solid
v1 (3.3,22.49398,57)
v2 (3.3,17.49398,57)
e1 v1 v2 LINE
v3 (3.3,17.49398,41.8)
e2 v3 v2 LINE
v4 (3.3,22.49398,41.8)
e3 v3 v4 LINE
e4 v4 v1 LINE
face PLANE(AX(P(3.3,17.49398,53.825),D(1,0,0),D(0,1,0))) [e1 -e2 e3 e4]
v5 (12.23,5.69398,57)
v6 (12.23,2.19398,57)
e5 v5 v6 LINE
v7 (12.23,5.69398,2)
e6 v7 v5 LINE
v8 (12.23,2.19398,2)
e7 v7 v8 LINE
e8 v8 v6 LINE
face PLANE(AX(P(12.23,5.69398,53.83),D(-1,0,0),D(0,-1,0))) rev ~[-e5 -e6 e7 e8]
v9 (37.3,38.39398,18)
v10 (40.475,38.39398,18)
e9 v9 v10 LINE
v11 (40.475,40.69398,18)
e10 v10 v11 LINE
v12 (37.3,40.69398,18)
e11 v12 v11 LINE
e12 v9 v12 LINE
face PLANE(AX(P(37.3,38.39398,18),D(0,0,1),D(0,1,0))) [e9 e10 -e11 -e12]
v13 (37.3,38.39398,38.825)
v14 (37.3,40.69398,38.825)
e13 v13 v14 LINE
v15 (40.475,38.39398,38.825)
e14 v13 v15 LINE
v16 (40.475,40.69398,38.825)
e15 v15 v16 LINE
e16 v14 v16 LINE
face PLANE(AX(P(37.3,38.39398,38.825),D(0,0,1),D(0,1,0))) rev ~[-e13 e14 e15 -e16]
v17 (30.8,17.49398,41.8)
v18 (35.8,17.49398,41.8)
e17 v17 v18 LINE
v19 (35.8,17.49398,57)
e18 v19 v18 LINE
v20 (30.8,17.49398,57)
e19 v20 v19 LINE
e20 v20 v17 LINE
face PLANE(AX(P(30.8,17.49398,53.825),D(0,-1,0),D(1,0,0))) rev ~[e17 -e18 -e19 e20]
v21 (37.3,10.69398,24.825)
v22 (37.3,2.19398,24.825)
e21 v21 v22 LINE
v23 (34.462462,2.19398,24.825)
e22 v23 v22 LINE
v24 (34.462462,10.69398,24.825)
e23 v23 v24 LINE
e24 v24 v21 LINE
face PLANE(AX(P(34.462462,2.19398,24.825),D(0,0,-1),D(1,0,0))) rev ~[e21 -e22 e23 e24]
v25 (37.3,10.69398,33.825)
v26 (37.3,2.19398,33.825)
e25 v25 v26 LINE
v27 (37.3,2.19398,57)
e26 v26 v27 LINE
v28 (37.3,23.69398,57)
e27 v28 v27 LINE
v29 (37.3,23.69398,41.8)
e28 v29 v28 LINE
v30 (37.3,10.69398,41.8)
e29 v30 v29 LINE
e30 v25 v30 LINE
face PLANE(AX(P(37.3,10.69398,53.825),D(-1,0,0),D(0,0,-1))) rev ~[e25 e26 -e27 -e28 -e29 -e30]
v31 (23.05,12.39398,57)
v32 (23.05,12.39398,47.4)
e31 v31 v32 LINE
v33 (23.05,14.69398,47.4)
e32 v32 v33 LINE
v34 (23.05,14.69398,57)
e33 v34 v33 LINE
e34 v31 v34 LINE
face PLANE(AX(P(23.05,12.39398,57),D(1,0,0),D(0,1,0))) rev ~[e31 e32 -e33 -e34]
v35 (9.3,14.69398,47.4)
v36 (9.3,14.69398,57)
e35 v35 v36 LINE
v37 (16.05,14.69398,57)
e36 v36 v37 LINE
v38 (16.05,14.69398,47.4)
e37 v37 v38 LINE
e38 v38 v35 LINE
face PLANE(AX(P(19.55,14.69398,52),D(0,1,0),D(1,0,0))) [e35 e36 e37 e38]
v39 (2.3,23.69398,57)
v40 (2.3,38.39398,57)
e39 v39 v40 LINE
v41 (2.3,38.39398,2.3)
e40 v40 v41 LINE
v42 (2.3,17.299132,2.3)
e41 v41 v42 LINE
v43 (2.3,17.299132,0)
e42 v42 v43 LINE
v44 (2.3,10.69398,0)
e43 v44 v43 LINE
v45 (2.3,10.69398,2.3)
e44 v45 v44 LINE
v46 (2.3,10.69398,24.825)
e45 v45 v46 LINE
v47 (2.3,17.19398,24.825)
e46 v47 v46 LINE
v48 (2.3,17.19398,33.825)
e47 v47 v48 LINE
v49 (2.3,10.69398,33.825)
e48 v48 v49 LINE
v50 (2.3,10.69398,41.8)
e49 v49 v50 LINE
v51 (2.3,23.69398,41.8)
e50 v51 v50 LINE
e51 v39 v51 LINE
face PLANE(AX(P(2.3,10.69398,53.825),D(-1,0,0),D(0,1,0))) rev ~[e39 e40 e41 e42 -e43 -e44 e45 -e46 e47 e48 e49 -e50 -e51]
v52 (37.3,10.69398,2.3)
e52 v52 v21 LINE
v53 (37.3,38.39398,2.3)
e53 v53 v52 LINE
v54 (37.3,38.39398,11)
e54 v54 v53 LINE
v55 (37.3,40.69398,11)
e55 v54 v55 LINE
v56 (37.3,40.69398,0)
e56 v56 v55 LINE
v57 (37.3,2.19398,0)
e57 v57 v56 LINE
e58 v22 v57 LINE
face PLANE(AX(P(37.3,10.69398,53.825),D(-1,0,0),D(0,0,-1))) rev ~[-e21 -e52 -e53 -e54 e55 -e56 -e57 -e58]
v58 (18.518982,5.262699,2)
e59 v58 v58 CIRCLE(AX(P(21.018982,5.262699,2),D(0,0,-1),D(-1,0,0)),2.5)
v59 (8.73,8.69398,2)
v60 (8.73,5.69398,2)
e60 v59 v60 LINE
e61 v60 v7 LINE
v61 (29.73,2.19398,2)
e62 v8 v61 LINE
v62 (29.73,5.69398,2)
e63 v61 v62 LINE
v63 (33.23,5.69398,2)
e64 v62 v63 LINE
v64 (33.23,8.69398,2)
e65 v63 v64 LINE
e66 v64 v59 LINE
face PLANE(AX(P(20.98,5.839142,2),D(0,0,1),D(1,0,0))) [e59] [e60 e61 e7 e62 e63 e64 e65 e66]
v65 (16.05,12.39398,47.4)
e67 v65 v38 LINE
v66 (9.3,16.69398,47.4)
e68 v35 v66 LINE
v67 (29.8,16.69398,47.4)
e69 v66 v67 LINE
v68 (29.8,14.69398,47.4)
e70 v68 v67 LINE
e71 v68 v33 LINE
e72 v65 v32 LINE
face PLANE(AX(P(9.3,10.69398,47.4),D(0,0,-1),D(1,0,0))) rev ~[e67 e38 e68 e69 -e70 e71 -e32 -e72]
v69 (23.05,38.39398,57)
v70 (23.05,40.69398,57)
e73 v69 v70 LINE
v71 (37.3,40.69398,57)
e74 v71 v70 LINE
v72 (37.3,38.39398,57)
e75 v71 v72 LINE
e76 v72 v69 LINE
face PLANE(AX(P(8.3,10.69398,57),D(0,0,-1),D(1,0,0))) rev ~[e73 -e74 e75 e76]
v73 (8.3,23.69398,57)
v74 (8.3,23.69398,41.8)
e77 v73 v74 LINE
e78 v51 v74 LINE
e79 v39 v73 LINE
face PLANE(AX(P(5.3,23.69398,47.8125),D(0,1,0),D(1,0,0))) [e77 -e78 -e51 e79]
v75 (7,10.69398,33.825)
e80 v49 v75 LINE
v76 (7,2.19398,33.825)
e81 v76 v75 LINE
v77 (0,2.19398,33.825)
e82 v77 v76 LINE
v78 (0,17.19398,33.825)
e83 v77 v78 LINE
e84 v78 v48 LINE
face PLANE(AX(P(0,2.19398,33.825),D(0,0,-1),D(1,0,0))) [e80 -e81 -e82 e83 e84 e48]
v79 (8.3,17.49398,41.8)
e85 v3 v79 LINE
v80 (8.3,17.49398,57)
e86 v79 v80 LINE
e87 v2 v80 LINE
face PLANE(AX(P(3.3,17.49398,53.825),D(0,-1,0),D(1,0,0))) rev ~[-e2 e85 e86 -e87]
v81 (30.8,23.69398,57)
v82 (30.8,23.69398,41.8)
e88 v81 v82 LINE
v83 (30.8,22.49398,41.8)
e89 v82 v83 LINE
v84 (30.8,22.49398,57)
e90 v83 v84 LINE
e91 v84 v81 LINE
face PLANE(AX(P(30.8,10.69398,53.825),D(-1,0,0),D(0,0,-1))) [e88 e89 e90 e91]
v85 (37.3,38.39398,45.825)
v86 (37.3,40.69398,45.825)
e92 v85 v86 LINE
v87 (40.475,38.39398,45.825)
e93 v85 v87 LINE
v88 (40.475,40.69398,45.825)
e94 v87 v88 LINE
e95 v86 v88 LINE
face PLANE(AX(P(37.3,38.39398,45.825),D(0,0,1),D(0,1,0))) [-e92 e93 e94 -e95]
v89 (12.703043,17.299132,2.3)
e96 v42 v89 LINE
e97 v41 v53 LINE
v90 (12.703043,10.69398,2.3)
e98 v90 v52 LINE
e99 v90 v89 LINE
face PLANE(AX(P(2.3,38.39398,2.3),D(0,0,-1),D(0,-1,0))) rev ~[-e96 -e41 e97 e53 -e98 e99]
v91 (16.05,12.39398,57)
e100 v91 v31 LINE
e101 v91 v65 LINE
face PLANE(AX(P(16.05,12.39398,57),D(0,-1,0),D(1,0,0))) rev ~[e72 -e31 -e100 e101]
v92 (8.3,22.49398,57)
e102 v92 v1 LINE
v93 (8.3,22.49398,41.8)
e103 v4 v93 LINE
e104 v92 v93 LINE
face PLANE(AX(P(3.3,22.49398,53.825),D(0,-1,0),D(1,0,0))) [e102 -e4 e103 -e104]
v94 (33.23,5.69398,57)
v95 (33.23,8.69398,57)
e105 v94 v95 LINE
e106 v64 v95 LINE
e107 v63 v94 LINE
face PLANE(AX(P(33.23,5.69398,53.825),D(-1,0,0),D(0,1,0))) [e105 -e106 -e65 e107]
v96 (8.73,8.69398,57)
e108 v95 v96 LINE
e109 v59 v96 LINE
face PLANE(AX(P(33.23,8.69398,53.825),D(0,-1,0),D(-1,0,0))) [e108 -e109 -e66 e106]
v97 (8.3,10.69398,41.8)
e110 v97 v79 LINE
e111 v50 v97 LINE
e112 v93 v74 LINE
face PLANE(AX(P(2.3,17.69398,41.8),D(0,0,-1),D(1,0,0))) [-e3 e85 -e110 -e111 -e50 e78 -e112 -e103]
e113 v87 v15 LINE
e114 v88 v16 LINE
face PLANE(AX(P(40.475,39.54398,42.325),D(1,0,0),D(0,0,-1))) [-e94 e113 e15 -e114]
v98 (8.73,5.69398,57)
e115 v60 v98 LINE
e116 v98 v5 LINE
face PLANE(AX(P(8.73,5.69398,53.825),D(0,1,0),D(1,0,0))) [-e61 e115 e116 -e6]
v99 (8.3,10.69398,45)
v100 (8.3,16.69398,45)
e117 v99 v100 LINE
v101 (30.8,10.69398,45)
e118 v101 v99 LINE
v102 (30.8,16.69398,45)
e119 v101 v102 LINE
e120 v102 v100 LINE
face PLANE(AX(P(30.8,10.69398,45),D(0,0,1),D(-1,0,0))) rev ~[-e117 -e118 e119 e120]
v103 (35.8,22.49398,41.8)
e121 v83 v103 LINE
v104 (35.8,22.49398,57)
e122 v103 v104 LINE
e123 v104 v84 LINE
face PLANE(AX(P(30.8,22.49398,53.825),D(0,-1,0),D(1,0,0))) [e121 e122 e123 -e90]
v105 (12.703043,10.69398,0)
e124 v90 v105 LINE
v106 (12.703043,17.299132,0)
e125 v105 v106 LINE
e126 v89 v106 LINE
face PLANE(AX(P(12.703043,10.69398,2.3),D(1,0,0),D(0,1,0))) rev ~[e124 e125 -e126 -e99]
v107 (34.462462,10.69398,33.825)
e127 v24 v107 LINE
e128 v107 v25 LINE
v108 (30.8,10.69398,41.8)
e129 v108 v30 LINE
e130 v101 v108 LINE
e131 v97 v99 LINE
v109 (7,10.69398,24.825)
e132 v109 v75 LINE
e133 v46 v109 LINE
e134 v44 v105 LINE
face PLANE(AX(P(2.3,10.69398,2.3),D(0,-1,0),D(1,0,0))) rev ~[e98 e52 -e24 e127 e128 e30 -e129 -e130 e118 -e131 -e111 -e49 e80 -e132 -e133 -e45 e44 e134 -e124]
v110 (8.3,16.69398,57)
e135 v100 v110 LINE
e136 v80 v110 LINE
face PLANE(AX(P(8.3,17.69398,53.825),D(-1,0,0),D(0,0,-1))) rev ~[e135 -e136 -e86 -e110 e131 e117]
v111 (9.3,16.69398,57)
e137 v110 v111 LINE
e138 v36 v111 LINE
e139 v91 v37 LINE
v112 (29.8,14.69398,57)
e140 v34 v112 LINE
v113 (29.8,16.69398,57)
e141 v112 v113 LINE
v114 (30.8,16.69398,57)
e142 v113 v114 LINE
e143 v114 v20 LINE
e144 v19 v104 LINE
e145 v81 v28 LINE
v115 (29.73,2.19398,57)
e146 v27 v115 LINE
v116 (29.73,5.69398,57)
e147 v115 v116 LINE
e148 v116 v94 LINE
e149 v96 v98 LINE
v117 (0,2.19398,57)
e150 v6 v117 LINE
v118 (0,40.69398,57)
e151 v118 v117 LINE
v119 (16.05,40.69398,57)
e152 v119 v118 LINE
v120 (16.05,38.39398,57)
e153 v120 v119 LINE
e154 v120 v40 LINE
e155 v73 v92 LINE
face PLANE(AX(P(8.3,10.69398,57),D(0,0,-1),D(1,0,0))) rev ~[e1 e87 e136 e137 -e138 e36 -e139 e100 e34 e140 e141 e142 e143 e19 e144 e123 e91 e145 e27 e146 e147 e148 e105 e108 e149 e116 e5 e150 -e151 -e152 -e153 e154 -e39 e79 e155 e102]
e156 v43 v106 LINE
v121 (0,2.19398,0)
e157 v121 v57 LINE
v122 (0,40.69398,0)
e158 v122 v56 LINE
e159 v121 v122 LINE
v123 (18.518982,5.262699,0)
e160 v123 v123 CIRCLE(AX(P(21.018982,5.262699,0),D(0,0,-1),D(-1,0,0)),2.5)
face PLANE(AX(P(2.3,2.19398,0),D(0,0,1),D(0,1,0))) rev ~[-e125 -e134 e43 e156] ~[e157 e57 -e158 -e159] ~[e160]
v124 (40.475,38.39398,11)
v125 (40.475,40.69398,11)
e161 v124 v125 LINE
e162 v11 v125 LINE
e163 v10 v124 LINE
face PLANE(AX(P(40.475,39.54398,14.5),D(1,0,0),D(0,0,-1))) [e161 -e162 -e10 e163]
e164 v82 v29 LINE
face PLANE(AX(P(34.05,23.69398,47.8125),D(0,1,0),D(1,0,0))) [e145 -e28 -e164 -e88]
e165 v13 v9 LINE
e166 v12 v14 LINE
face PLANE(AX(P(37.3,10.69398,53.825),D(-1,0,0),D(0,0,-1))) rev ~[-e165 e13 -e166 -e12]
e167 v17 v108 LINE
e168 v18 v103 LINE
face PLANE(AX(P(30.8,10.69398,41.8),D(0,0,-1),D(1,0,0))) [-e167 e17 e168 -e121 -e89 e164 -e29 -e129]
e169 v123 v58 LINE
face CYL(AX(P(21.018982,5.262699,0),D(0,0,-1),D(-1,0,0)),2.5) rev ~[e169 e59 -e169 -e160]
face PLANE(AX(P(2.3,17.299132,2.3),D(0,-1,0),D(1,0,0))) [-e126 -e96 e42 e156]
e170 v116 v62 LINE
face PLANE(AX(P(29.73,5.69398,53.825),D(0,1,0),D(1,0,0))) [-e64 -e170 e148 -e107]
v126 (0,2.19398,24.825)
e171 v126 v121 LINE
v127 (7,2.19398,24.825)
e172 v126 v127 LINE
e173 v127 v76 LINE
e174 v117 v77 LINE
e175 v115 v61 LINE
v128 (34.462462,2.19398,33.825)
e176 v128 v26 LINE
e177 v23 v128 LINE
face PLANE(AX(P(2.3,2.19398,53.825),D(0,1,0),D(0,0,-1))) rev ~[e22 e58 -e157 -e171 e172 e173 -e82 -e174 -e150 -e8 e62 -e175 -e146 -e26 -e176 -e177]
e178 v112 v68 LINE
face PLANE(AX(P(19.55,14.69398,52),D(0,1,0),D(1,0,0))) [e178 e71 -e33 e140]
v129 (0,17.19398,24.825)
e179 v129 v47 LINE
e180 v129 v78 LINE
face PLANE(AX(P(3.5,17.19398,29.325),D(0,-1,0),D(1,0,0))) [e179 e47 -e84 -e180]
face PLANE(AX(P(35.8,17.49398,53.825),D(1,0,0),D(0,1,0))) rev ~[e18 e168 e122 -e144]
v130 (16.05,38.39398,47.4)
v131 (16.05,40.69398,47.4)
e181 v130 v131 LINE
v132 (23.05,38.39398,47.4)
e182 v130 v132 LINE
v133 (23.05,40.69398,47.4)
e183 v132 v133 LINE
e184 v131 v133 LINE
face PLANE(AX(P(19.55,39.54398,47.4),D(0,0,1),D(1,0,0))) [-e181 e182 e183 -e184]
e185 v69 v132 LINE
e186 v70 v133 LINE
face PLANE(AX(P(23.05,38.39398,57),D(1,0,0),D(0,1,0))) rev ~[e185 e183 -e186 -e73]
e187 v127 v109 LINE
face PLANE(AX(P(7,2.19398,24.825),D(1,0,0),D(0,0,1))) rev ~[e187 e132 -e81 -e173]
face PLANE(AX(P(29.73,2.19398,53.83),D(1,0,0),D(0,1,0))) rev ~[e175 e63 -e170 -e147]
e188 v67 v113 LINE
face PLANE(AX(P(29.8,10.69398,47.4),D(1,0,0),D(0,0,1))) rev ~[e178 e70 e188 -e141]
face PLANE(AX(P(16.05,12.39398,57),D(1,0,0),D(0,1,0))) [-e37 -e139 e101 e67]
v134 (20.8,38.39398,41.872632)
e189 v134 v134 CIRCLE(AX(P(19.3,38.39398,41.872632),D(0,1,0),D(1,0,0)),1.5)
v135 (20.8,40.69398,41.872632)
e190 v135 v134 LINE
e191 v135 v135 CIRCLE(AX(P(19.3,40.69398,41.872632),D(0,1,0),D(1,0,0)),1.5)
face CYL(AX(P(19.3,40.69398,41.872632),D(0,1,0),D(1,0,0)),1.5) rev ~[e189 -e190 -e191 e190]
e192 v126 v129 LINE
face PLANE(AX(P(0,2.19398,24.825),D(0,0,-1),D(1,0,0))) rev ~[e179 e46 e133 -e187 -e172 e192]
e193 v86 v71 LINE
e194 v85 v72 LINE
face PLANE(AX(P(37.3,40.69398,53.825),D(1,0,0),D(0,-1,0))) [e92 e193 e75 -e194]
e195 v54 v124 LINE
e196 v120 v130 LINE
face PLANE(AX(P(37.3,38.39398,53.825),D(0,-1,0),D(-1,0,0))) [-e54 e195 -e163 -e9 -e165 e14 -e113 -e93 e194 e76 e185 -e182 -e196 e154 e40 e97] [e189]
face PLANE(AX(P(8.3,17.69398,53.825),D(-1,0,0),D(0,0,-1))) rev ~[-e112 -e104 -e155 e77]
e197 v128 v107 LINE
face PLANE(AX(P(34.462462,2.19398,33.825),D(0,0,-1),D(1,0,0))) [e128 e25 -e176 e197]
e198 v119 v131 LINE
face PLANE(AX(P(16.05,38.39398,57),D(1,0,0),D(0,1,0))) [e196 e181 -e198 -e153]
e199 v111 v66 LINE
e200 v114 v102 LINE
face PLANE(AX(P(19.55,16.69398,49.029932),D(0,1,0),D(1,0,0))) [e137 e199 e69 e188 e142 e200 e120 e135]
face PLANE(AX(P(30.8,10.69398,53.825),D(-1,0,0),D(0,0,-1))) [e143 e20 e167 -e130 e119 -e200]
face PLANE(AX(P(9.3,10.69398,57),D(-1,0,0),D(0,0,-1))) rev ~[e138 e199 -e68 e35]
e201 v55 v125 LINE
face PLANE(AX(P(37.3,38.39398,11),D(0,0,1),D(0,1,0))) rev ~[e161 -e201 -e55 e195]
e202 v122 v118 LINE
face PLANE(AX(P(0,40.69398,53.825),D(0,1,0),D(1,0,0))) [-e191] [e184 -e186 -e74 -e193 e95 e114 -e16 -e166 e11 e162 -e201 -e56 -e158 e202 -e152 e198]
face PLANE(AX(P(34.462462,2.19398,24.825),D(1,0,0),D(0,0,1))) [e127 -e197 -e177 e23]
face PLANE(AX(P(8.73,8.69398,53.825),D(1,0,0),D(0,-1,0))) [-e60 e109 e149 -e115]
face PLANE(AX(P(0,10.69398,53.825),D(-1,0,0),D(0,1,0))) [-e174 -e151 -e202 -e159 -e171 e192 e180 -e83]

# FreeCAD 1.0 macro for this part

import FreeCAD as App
import Part
import Sketcher

V = App.Vector
Q = App.Units.Quantity


def add_polygon(sketch, points):
    """Adds a closed chain of lines whose ends are joined by coincident constraints."""
    first, n = sketch.GeometryCount, len(points)
    for a, b in zip(points, points[1:] + points[:1]):
        sketch.addGeometry(Part.LineSegment(App.Vector(*a, 0), App.Vector(*b, 0)), False)
    for i in range(n):
        sketch.addConstraint(Sketcher.Constraint("Coincident", first + i, 2, first + (i + 1) % n, 1))

doc = App.newDocument("Part")
body = doc.addObject("PartDesign::Body", "Body")

# Sketch on YZ plane
sketch1 = body.newObject("Sketcher::SketchObject", "Sketch")
sketch1.AttachmentSupport = (doc.getObject("YZ_Plane"), [""])
sketch1.MapMode = "FlatFace"
add_polygon(sketch1, [(41, 54), (2, 54), (2, 0), (41, 0)])  # lines 0-3
sketch1.addConstraint([
    Sketcher.Constraint("Horizontal", 0),
    Sketcher.Constraint("Vertical", 1),
    Sketcher.Constraint("Horizontal", 2),
    Sketcher.Constraint("Vertical", 3),
    Sketcher.Constraint("PointOnObject", 1, 2, -1),
    Sketcher.Constraint("DistanceX", 0, 2, 0, 1, Q("38.5 mm")),
    Sketcher.Constraint("DistanceY", 1, 2, 1, 1, Q("53.825 mm")),
    Sketcher.Constraint("DistanceX", -1, 1, 0, 2, Q("2.19398 mm")),
])
pad1 = body.newObject("PartDesign::Pad", "Pad")
pad1.Profile = sketch1
pad1.Length = 2.3

# Sketch on YZ plane
sketch2 = body.newObject("Sketcher::SketchObject", "Sketch001")
sketch2.AttachmentSupport = (doc.getObject("YZ_Plane"), [""])
sketch2.MapMode = "FlatFace"
sketch2.AttachmentOffset = App.Placement(V(0, 0, 2.3), App.Rotation())
add_polygon(sketch2, [(38.4, 2.3), (10.7, 2.3), (10.7, 53.8), (2.2, 53.8), (2.2, 0), (40.7, 0), (40.7, 53.8), (38.4, 53.8)])  # lines 0-7
sketch2.addConstraint([
    Sketcher.Constraint("Horizontal", 0),
    Sketcher.Constraint("Vertical", 1),
    Sketcher.Constraint("Horizontal", 2),
    Sketcher.Constraint("Vertical", 3),
    Sketcher.Constraint("Horizontal", 4),
    Sketcher.Constraint("Vertical", 5),
    Sketcher.Constraint("Horizontal", 6),
    Sketcher.Constraint("Vertical", 7),
    Sketcher.Constraint("PointOnObject", 3, 2, -1),
    Sketcher.Constraint("Horizontal", 2, 2, 5, 2),
    Sketcher.Constraint("DistanceX", 0, 2, 0, 1, Q("27.7 mm")),
    Sketcher.Constraint("DistanceX", 2, 2, 2, 1, Q("8.5 mm")),
    Sketcher.Constraint("DistanceX", 4, 1, 4, 2, Q("38.5 mm")),
    Sketcher.Constraint("DistanceY", -1, 1, 0, 2, Q("2.3 mm")),
    Sketcher.Constraint("DistanceY", 1, 1, 1, 2, Q("51.525 mm")),
    Sketcher.Constraint("DistanceX", -1, 1, 0, 2, Q("10.69398 mm")),
])
pad2 = body.newObject("PartDesign::Pad", "Pad001")
pad2.Profile = sketch2
pad2.Length = 35

# Sketch on XY plane
sketch3 = body.newObject("Sketcher::SketchObject", "Sketch002")
sketch3.AttachmentSupport = (doc.getObject("XY_Plane"), [""])
sketch3.MapMode = "FlatFace"
sketch3.AttachmentOffset = App.Placement(V(0, 0, 53.825), App.Rotation())
add_polygon(sketch3, [(8, 40.7), (8, 38.4), (15, 38.4), (15, 40.7)])  # lines 0-3
add_polygon(sketch3, [(23, 40.7), (23, 38.4), (30, 38.4), (30, 40.7)])  # lines 4-7
add_polygon(sketch3, [(0, 32.7), (0, 25.7), (2.3, 25.7), (2.3, 32.7)])  # lines 8-11
add_polygon(sketch3, [(0, 17.7), (0, 10.7), (2.3, 10.7), (2.3, 17.7)])  # lines 12-15
sketch3.addConstraint([
    Sketcher.Constraint("Vertical", 0),
    Sketcher.Constraint("Horizontal", 1),
    Sketcher.Constraint("Vertical", 2),
    Sketcher.Constraint("Horizontal", 3),
    Sketcher.Constraint("Vertical", 4),
    Sketcher.Constraint("Horizontal", 5),
    Sketcher.Constraint("Vertical", 6),
    Sketcher.Constraint("Horizontal", 7),
    Sketcher.Constraint("Vertical", 8),
    Sketcher.Constraint("Horizontal", 9),
    Sketcher.Constraint("Vertical", 10),
    Sketcher.Constraint("Horizontal", 11),
    Sketcher.Constraint("Vertical", 12),
    Sketcher.Constraint("Horizontal", 13),
    Sketcher.Constraint("Vertical", 14),
    Sketcher.Constraint("Horizontal", 15),
    Sketcher.Constraint("PointOnObject", 8, 2, -2),
    Sketcher.Constraint("PointOnObject", 12, 2, -2),
    Sketcher.Constraint("Horizontal", 1, 2, 4, 2),
    Sketcher.Constraint("Horizontal", 3, 2, 6, 2),
    Sketcher.Constraint("Vertical", 10, 2, 13, 2),
    Sketcher.Constraint("Equal", 3, 5),
    Sketcher.Constraint("Equal", 15, 0),
    Sketcher.Constraint("Equal", 7, 8),
    Sketcher.Constraint("Equal", 10, 12),
    Sketcher.Constraint("DistanceX", 1, 1, 1, 2, Q("7 mm")),
    Sketcher.Constraint("DistanceX", 9, 1, 9, 2, Q("2.3 mm")),
    Sketcher.Constraint("DistanceX", -1, 1, 0, 2, Q("8 mm")),
    Sketcher.Constraint("DistanceX", -1, 1, 4, 2, Q("23 mm")),
    Sketcher.Constraint("DistanceY", 8, 2, 3, 2, Q("15 mm")),
    Sketcher.Constraint("DistanceY", 12, 2, 8, 2, Q("15 mm")),
    Sketcher.Constraint("DistanceY", -1, 1, 0, 2, Q("38.39398 mm")),
])
pad3 = body.newObject("PartDesign::Pad", "Pad002")
pad3.Profile = sketch3
pad3.Length = 3.175

# Sketch on XY plane
sketch4 = body.newObject("Sketcher::SketchObject", "Sketch003")
sketch4.AttachmentSupport = (doc.getObject("XY_Plane"), [""])
sketch4.MapMode = "FlatFace"
sketch4.AttachmentOffset = App.Placement(V(0, 0, 2.3), App.Rotation())
add_polygon(sketch4, [(2, 17), (2, 11), (13, 11), (13, 17)])  # lines 0-3
sketch4.addConstraint([
    Sketcher.Constraint("Vertical", 0),
    Sketcher.Constraint("Horizontal", 1),
    Sketcher.Constraint("Vertical", 2),
    Sketcher.Constraint("Horizontal", 3),
    Sketcher.Constraint("DistanceX", -1, 1, 0, 2, Q("2.3 mm")),
    Sketcher.Constraint("DistanceY", 0, 2, 0, 1, Q("6.605151 mm")),
    Sketcher.Constraint("DistanceX", 1, 1, 1, 2, Q("10.403043 mm")),
    Sketcher.Constraint("DistanceY", -1, 1, 0, 2, Q("10.69398 mm")),
])
pocket1 = body.newObject("PartDesign::Pocket", "Pocket")
pocket1.Profile = sketch4
pocket1.Type = "ThroughAll"

# Sketch on XZ plane
sketch5 = body.newObject("Sketcher::SketchObject", "Sketch004")
sketch5.AttachmentSupport = (doc.getObject("XZ_Plane"), [""])
sketch5.MapMode = "FlatFace"
sketch5.AttachmentOffset = App.Placement(V(0, 0, -10.69398), App.Rotation())
add_polygon(sketch5, [(31, 42), (31, 54), (37, 54), (37, 42)])  # lines 0-3
add_polygon(sketch5, [(2, 42), (2, 54), (8, 54), (8, 42)])  # lines 4-7
sketch5.addConstraint([
    Sketcher.Constraint("Vertical", 0),
    Sketcher.Constraint("Horizontal", 1),
    Sketcher.Constraint("Vertical", 2),
    Sketcher.Constraint("Horizontal", 3),
    Sketcher.Constraint("Vertical", 4),
    Sketcher.Constraint("Horizontal", 5),
    Sketcher.Constraint("Vertical", 6),
    Sketcher.Constraint("Horizontal", 7),
    Sketcher.Constraint("Horizontal", 1, 2, 4, 2),
    Sketcher.Constraint("Horizontal", 3, 2, 6, 2),
    Sketcher.Constraint("DistanceX", 5, 1, 5, 2, Q("6 mm")),
    Sketcher.Constraint("DistanceX", 1, 1, 1, 2, Q("6.5 mm")),
    Sketcher.Constraint("DistanceX", 4, 2, 1, 2, Q("35 mm")),
    Sketcher.Constraint("DistanceX", -1, 1, 0, 2, Q("30.8 mm")),
    Sketcher.Constraint("DistanceY", -1, 1, 2, 2, Q("41.8 mm")),
    Sketcher.Constraint("DistanceY", 0, 1, 0, 2, Q("12.025 mm")),
])
pad4 = body.newObject("PartDesign::Pad", "Pad003")
pad4.Profile = sketch5
pad4.Length = 7
pad4.Reversed = True

# Sketch on XY plane
sketch6 = body.newObject("Sketcher::SketchObject", "Sketch005")
sketch6.AttachmentSupport = (doc.getObject("XY_Plane"), [""])
sketch6.MapMode = "FlatFace"
sketch6.AttachmentOffset = App.Placement(V(0, 0, 53.83), App.Rotation())
add_polygon(sketch6, [(12.2, 2.2), (29.7, 2.2), (29.7, 5.7), (33.2, 5.7), (33.2, 8.7), (8.7, 8.7), (8.7, 5.7), (12.2, 5.7)])  # lines 0-7
sketch6.addConstraint([
    Sketcher.Constraint("Horizontal", 0),
    Sketcher.Constraint("Vertical", 1),
    Sketcher.Constraint("Horizontal", 2),
    Sketcher.Constraint("Vertical", 3),
    Sketcher.Constraint("Horizontal", 4),
    Sketcher.Constraint("Vertical", 5),
    Sketcher.Constraint("Horizontal", 6),
    Sketcher.Constraint("Vertical", 7),
    Sketcher.Constraint("Horizontal", 2, 2, 5, 2),
    Sketcher.Constraint("Equal", 2, 6),
    Sketcher.Constraint("Equal", 6, 1),
    Sketcher.Constraint("DistanceY", 3, 1, 3, 2, Q("3 mm")),
    Sketcher.Constraint("DistanceX", 0, 1, 0, 2, Q("17.5 mm")),
    Sketcher.Constraint("DistanceX", 2, 1, 2, 2, Q("3.5 mm")),
    Sketcher.Constraint("DistanceX", -1, 1, 0, 2, Q("29.73 mm")),
    Sketcher.Constraint("DistanceY", -1, 1, 0, 2, Q("2.19398 mm")),
])
pocket2 = body.newObject("PartDesign::Pocket", "Pocket001")
pocket2.Profile = sketch6
pocket2.Length = 51.83

# Sketch on XZ plane
sketch7 = body.newObject("Sketcher::SketchObject", "Sketch006")
sketch7.AttachmentSupport = (doc.getObject("XZ_Plane"), [""])
sketch7.MapMode = "FlatFace"
sketch7.AttachmentOffset = App.Placement(V(0, 0, -40.69398), App.Rotation())
sketch7.addGeometry(Part.Circle(V(19.3, 41.9, 0), V(0, 0, 1), 1.5), False)
sketch7.addConstraint([
    Sketcher.Constraint("Diameter", 0, Q("3 mm")),
    Sketcher.Constraint("DistanceX", -1, 1, 0, 3, Q("19.3 mm")),
    Sketcher.Constraint("DistanceY", -1, 1, 0, 3, Q("41.872632 mm")),
])
pocket3 = body.newObject("PartDesign::Pocket", "Pocket002")
pocket3.Profile = sketch7
pocket3.Length = 3
pocket3.Reversed = True

# Sketch on YZ plane
sketch8 = body.newObject("Sketcher::SketchObject", "Sketch007")
sketch8.AttachmentSupport = (doc.getObject("YZ_Plane"), [""])
sketch8.MapMode = "FlatFace"
sketch8.AttachmentOffset = App.Placement(V(0, 0, 37.3), App.Rotation())
add_polygon(sketch8, [(40.7, 45.8), (38.4, 45.8), (38.4, 38.8), (40.7, 38.8)])  # lines 0-3
add_polygon(sketch8, [(40.7, 18), (38.4, 18), (38.4, 11), (40.7, 11)])  # lines 4-7
sketch8.addConstraint([
    Sketcher.Constraint("Horizontal", 0),
    Sketcher.Constraint("Vertical", 1),
    Sketcher.Constraint("Horizontal", 2),
    Sketcher.Constraint("Vertical", 3),
    Sketcher.Constraint("Horizontal", 4),
    Sketcher.Constraint("Vertical", 5),
    Sketcher.Constraint("Horizontal", 6),
    Sketcher.Constraint("Vertical", 7),
    Sketcher.Constraint("Vertical", 1, 2, 4, 2),
    Sketcher.Constraint("Vertical", 3, 2, 6, 2),
    Sketcher.Constraint("Equal", 3, 5),
    Sketcher.Constraint("DistanceY", 1, 2, 1, 1, Q("7 mm")),
    Sketcher.Constraint("DistanceX", 0, 2, 0, 1, Q("2.3 mm")),
    Sketcher.Constraint("DistanceY", -1, 1, 4, 2, Q("18 mm")),
    Sketcher.Constraint("DistanceY", -1, 1, 0, 2, Q("45.825 mm")),
    Sketcher.Constraint("DistanceX", -1, 1, 0, 2, Q("38.39398 mm")),
])
pad5 = body.newObject("PartDesign::Pad", "Pad004")
pad5.Profile = sketch8
pad5.Length = 3.175

# Sketch on XZ plane
sketch9 = body.newObject("Sketcher::SketchObject", "Sketch008")
sketch9.AttachmentSupport = (doc.getObject("XZ_Plane"), [""])
sketch9.MapMode = "FlatFace"
sketch9.AttachmentOffset = App.Placement(V(0, 0, -17.69398), App.Rotation())
add_polygon(sketch9, [(2, 42), (2, 54), (8, 54), (8, 42)])  # lines 0-3
add_polygon(sketch9, [(31, 42), (31, 54), (37, 54), (37, 42)])  # lines 4-7
sketch9.addConstraint([
    Sketcher.Constraint("Vertical", 0),
    Sketcher.Constraint("Horizontal", 1),
    Sketcher.Constraint("Vertical", 2),
    Sketcher.Constraint("Horizontal", 3),
    Sketcher.Constraint("Vertical", 4),
    Sketcher.Constraint("Horizontal", 5),
    Sketcher.Constraint("Vertical", 6),
    Sketcher.Constraint("Horizontal", 7),
    Sketcher.Constraint("Horizontal", 1, 2, 4, 2),
    Sketcher.Constraint("Horizontal", 3, 2, 6, 2),
    Sketcher.Constraint("DistanceX", 1, 1, 1, 2, Q("6 mm")),
    Sketcher.Constraint("DistanceX", 5, 1, 5, 2, Q("6.5 mm")),
    Sketcher.Constraint("DistanceX", 1, 2, 5, 2, Q("29 mm")),
    Sketcher.Constraint("DistanceX", -1, 1, 0, 2, Q("2.3 mm")),
    Sketcher.Constraint("DistanceY", -1, 1, 2, 2, Q("41.8 mm")),
    Sketcher.Constraint("DistanceY", 0, 1, 0, 2, Q("12.025 mm")),
])
pad6 = body.newObject("PartDesign::Pad", "Pad005")
pad6.Profile = sketch9
pad6.Length = 6
pad6.Reversed = True

# Sketch on XY plane
sketch10 = body.newObject("Sketcher::SketchObject", "Sketch009")
sketch10.AttachmentSupport = (doc.getObject("XY_Plane"), [""])
sketch10.MapMode = "FlatFace"
sketch10.AttachmentOffset = App.Placement(V(0, 0, 53.825), App.Rotation())
add_polygon(sketch10, [(30.8, 22.5), (30.8, 17.5), (35.8, 17.5), (35.8, 22.5)])  # lines 0-3
add_polygon(sketch10, [(3.3, 22.5), (3.3, 17.5), (8.3, 17.5), (8.3, 22.5)])  # lines 4-7
sketch10.addConstraint([
    Sketcher.Constraint("Vertical", 0),
    Sketcher.Constraint("Horizontal", 1),
    Sketcher.Constraint("Vertical", 2),
    Sketcher.Constraint("Horizontal", 3),
    Sketcher.Constraint("Vertical", 4),
    Sketcher.Constraint("Horizontal", 5),
    Sketcher.Constraint("Vertical", 6),
    Sketcher.Constraint("Horizontal", 7),
    Sketcher.Constraint("Horizontal", 1, 2, 4, 2),
    Sketcher.Constraint("Horizontal", 3, 2, 6, 2),
    Sketcher.Constraint("Equal", 3, 5),
    Sketcher.Constraint("Equal", 7, 0),
    Sketcher.Constraint("DistanceX", 1, 1, 1, 2, Q("5 mm")),
    Sketcher.Constraint("DistanceX", -1, 1, 0, 2, Q("30.8 mm")),
    Sketcher.Constraint("DistanceX", -1, 1, 4, 2, Q("3.3 mm")),
    Sketcher.Constraint("DistanceY", -1, 1, 0, 2, Q("17.49398 mm")),
])
pocket4 = body.newObject("PartDesign::Pocket", "Pocket003")
pocket4.Profile = sketch10
pocket4.Length = 12.025

# Sketch on XY plane
sketch11 = body.newObject("Sketcher::SketchObject", "Sketch010")
sketch11.AttachmentSupport = (doc.getObject("XY_Plane"), [""])
sketch11.MapMode = "FlatFace"
sketch11.addGeometry(Part.Circle(V(21, 5.3, 0), V(0, 0, 1), 2.5), False)
sketch11.addConstraint([
    Sketcher.Constraint("Diameter", 0, Q("5 mm")),
    Sketcher.Constraint("DistanceY", -1, 1, 0, 3, Q("5.262699 mm")),
    Sketcher.Constraint("DistanceX", -1, 1, 0, 3, Q("21.018982 mm")),
])
pocket5 = body.newObject("PartDesign::Pocket", "Pocket004")
pocket5.Profile = sketch11
pocket5.Length = 2
pocket5.Reversed = True

# Sketch on XZ plane
sketch12 = body.newObject("Sketcher::SketchObject", "Sketch011")
sketch12.AttachmentSupport = (doc.getObject("XZ_Plane"), [""])
sketch12.MapMode = "FlatFace"
sketch12.AttachmentOffset = App.Placement(V(0, 0, -2.19398), App.Rotation())
add_polygon(sketch12, [(0, 34), (0, 25), (7, 25), (7, 34)])  # lines 0-3
add_polygon(sketch12, [(34, 34), (34, 25), (41, 25), (41, 34)])  # lines 4-7
sketch12.addConstraint([
    Sketcher.Constraint("Vertical", 0),
    Sketcher.Constraint("Horizontal", 1),
    Sketcher.Constraint("Vertical", 2),
    Sketcher.Constraint("Horizontal", 3),
    Sketcher.Constraint("Vertical", 4),
    Sketcher.Constraint("Horizontal", 5),
    Sketcher.Constraint("Vertical", 6),
    Sketcher.Constraint("Horizontal", 7),
    Sketcher.Constraint("PointOnObject", 0, 2, -2),
    Sketcher.Constraint("Horizontal", 1, 2, 4, 2),
    Sketcher.Constraint("Horizontal", 3, 2, 6, 2),
    Sketcher.Constraint("Equal", 3, 5),
    Sketcher.Constraint("DistanceX", 1, 1, 1, 2, Q("7 mm")),
    Sketcher.Constraint("DistanceY", 0, 2, 0, 1, Q("9 mm")),
    Sketcher.Constraint("DistanceY", -1, 1, 0, 2, Q("24.825 mm")),
    Sketcher.Constraint("DistanceX", -1, 1, 4, 2, Q("34.462462 mm")),
])
pocket6 = body.newObject("PartDesign::Pocket", "Pocket005")
pocket6.Profile = sketch12
pocket6.Length = 15

# Sketch on XY plane
sketch13 = body.newObject("Sketcher::SketchObject", "Sketch012")
sketch13.AttachmentSupport = (doc.getObject("XY_Plane"), [""])
sketch13.MapMode = "FlatFace"
sketch13.AttachmentOffset = App.Placement(V(0, 0, 53.825), App.Rotation())
add_polygon(sketch13, [(2.3, 38.4), (37.3, 38.4), (37.3, 40.7), (0, 40.7), (0, 2.2), (12.2, 2.2), (12.2, 5.7), (8.7, 5.7), (8.7, 8.7), (33.2, 8.7), (33.2, 5.7), (29.7, 5.7), (29.7, 2.2), (37.3, 2.2), (37.3, 23.7), (30.8, 23.7), (30.8, 22.5), (35.8, 22.5), (35.8, 17.5), (30.8, 17.5), (30.8, 10.7), (8.3, 10.7), (8.3, 17.5), (3.3, 17.5), (3.3, 22.5), (8.3, 22.5), (8.3, 23.7), (2.3, 23.7)])  # lines 0-27
sketch13.addConstraint([
    Sketcher.Constraint("Horizontal", 0),
    Sketcher.Constraint("Vertical", 1),
    Sketcher.Constraint("Horizontal", 2),
    Sketcher.Constraint("Vertical", 3),
    Sketcher.Constraint("Horizontal", 4),
    Sketcher.Constraint("Vertical", 5),
    Sketcher.Constraint("Horizontal", 6),
    Sketcher.Constraint("Vertical", 7),
    Sketcher.Constraint("Horizontal", 8),
    Sketcher.Constraint("Vertical", 9),
    Sketcher.Constraint("Horizontal", 10),
    Sketcher.Constraint("Vertical", 11),
    Sketcher.Constraint("Horizontal", 12),
    Sketcher.Constraint("Vertical", 13),
    Sketcher.Constraint("Horizontal", 14),
    Sketcher.Constraint("Vertical", 15),
    Sketcher.Constraint("Horizontal", 16),
    Sketcher.Constraint("Vertical", 17),
    Sketcher.Constraint("Horizontal", 18),
    Sketcher.Constraint("Vertical", 19),
    Sketcher.Constraint("Horizontal", 20),
    Sketcher.Constraint("Vertical", 21),
    Sketcher.Constraint("Horizontal", 22),
    Sketcher.Constraint("Vertical", 23),
    Sketcher.Constraint("Horizontal", 24),
    Sketcher.Constraint("Vertical", 25),
    Sketcher.Constraint("Horizontal", 26),
    Sketcher.Constraint("Vertical", 27),
    Sketcher.Constraint("PointOnObject", 2, 2, -2),
    Sketcher.Constraint("Horizontal", 6, 2, 9, 2),
    Sketcher.Constraint("Horizontal", 4, 2, 11, 2),
    Sketcher.Constraint("Horizontal", 18, 2, 21, 2),
    Sketcher.Constraint("Horizontal", 16, 2, 23, 2),
    Sketcher.Constraint("Horizontal", 14, 2, 25, 2),
    Sketcher.Constraint("Vertical", 1, 2, 12, 2),
    Sketcher.Constraint("Vertical", 15, 2, 18, 2),
    Sketcher.Constraint("Vertical", 21, 2, 24, 2),
    Sketcher.Constraint("Equal", 6, 10),
    Sketcher.Constraint("Equal", 18, 22),
    Sketcher.Constraint("Equal", 10, 5),
    Sketcher.Constraint("Equal", 24, 17),
    Sketcher.Constraint("DistanceX", 0, 1, 0, 2, Q("35 mm")),
    Sketcher.Constraint("DistanceX", 16, 1, 16, 2, Q("5 mm")),
    Sketcher.Constraint("DistanceX", 26, 2, 26, 1, Q("6 mm")),
    Sketcher.Constraint("DistanceY", 7, 1, 7, 2, Q("3 mm")),
    Sketcher.Constraint("DistanceX", 2, 2, 2, 1, Q("37.3 mm")),
    Sketcher.Constraint("DistanceX", 6, 2, 6, 1, Q("3.5 mm")),
    Sketcher.Constraint("DistanceX", 8, 1, 8, 2, Q("24.5 mm")),
    Sketcher.Constraint("DistanceX", 14, 2, 14, 1, Q("6.5 mm")),
    Sketcher.Constraint("DistanceY", 1, 1, 1, 2, Q("2.3 mm")),
    Sketcher.Constraint("DistanceY", 3, 2, 3, 1, Q("38.5 mm")),
    Sketcher.Constraint("DistanceY", 13, 1, 13, 2, Q("21.5 mm")),
    Sketcher.Constraint("DistanceY", 15, 2, 15, 1, Q("1.2 mm")),
    Sketcher.Constraint("DistanceY", 19, 2, 19, 1, Q("6.8 mm")),
    Sketcher.Constraint("DistanceX", 4, 1, 4, 2, Q("12.23 mm")),
    Sketcher.Constraint("DistanceY", -1, 1, 0, 2, Q("38.39398 mm")),
])
pad7 = body.newObject("PartDesign::Pad", "Pad006")
pad7.Profile = sketch13
pad7.Length = 3.175

# Sketch on XZ plane
sketch14 = body.newObject("Sketcher::SketchObject", "Sketch013")
sketch14.AttachmentSupport = (doc.getObject("XZ_Plane"), [""])
sketch14.MapMode = "FlatFace"
sketch14.AttachmentOffset = App.Placement(V(0, 0, -10.69398), App.Rotation())
add_polygon(sketch14, [(8, 47), (8, 57), (31, 57), (31, 47)])  # lines 0-3
sketch14.addConstraint([
    Sketcher.Constraint("Vertical", 0),
    Sketcher.Constraint("Horizontal", 1),
    Sketcher.Constraint("Vertical", 2),
    Sketcher.Constraint("Horizontal", 3),
    Sketcher.Constraint("DistanceY", 0, 1, 0, 2, Q("10 mm")),
    Sketcher.Constraint("DistanceX", 1, 1, 1, 2, Q("22.5 mm")),
    Sketcher.Constraint("DistanceY", -1, 1, 0, 2, Q("57 mm")),
    Sketcher.Constraint("DistanceX", -1, 1, 0, 2, Q("8.3 mm")),
])
pad8 = body.newObject("PartDesign::Pad", "Pad007")
pad8.Profile = sketch14
pad8.Length = 4
pad8.Reversed = True

# Sketch on XZ plane
sketch15 = body.newObject("Sketcher::SketchObject", "Sketch014")
sketch15.AttachmentSupport = (doc.getObject("XZ_Plane"), [""])
sketch15.MapMode = "FlatFace"
sketch15.AttachmentOffset = App.Placement(V(0, 0, -10.69398), App.Rotation())
add_polygon(sketch15, [(9.3, 47.4), (29.8, 47.4), (29.8, 57), (30.8, 57), (30.8, 45), (8.3, 45), (8.3, 57), (9.3, 57)])  # lines 0-7
sketch15.addConstraint([
    Sketcher.Constraint("Horizontal", 0),
    Sketcher.Constraint("Vertical", 1),
    Sketcher.Constraint("Horizontal", 2),
    Sketcher.Constraint("Vertical", 3),
    Sketcher.Constraint("Horizontal", 4),
    Sketcher.Constraint("Vertical", 5),
    Sketcher.Constraint("Horizontal", 6),
    Sketcher.Constraint("Vertical", 7),
    Sketcher.Constraint("Horizontal", 2, 2, 5, 2),
    Sketcher.Constraint("Equal", 2, 6),
    Sketcher.Constraint("DistanceX", 2, 1, 2, 2, Q("1 mm")),
    Sketcher.Constraint("DistanceY", 3, 2, 3, 1, Q("12 mm")),
    Sketcher.Constraint("DistanceX", 0, 1, 0, 2, Q("20.5 mm")),
    Sketcher.Constraint("DistanceY", 1, 1, 1, 2, Q("9.6 mm")),
    Sketcher.Constraint("DistanceY", -1, 1, 1, 2, Q("57 mm")),
    Sketcher.Constraint("DistanceX", -1, 1, 0, 2, Q("29.8 mm")),
])
pad9 = body.newObject("PartDesign::Pad", "Pad008")
pad9.Profile = sketch15
pad9.Length = 6
pad9.Reversed = True

# Sketch on XY plane
sketch16 = body.newObject("Sketcher::SketchObject", "Sketch015")
sketch16.AttachmentSupport = (doc.getObject("XY_Plane"), [""])
sketch16.MapMode = "FlatFace"
sketch16.AttachmentOffset = App.Placement(V(0, 0, 57), App.Rotation())
add_polygon(sketch16, [(16.1, 40.7), (16.1, 38.4), (23.1, 38.4), (23.1, 40.7)])  # lines 0-3
add_polygon(sketch16, [(16.1, 14.7), (16.1, 12.4), (23.1, 12.4), (23.1, 14.7)])  # lines 4-7
sketch16.addConstraint([
    Sketcher.Constraint("Vertical", 0),
    Sketcher.Constraint("Horizontal", 1),
    Sketcher.Constraint("Vertical", 2),
    Sketcher.Constraint("Horizontal", 3),
    Sketcher.Constraint("Vertical", 4),
    Sketcher.Constraint("Horizontal", 5),
    Sketcher.Constraint("Vertical", 6),
    Sketcher.Constraint("Horizontal", 7),
    Sketcher.Constraint("Vertical", 3, 2, 4, 2),
    Sketcher.Constraint("Vertical", 2, 2, 5, 2),
    Sketcher.Constraint("Equal", 2, 4),
    Sketcher.Constraint("DistanceX", 1, 1, 1, 2, Q("7 mm")),
    Sketcher.Constraint("DistanceY", 0, 2, 0, 1, Q("2.3 mm")),
    Sketcher.Constraint("DistanceY", 4, 2, 0, 2, Q("26 mm")),
    Sketcher.Constraint("DistanceX", -1, 1, 0, 2, Q("16.05 mm")),
    Sketcher.Constraint("DistanceY", -1, 1, 0, 2, Q("38.39398 mm")),
])
pocket7 = body.newObject("PartDesign::Pocket", "Pocket006")
pocket7.Profile = sketch16
pocket7.Length = 9.6

doc.recompute()
